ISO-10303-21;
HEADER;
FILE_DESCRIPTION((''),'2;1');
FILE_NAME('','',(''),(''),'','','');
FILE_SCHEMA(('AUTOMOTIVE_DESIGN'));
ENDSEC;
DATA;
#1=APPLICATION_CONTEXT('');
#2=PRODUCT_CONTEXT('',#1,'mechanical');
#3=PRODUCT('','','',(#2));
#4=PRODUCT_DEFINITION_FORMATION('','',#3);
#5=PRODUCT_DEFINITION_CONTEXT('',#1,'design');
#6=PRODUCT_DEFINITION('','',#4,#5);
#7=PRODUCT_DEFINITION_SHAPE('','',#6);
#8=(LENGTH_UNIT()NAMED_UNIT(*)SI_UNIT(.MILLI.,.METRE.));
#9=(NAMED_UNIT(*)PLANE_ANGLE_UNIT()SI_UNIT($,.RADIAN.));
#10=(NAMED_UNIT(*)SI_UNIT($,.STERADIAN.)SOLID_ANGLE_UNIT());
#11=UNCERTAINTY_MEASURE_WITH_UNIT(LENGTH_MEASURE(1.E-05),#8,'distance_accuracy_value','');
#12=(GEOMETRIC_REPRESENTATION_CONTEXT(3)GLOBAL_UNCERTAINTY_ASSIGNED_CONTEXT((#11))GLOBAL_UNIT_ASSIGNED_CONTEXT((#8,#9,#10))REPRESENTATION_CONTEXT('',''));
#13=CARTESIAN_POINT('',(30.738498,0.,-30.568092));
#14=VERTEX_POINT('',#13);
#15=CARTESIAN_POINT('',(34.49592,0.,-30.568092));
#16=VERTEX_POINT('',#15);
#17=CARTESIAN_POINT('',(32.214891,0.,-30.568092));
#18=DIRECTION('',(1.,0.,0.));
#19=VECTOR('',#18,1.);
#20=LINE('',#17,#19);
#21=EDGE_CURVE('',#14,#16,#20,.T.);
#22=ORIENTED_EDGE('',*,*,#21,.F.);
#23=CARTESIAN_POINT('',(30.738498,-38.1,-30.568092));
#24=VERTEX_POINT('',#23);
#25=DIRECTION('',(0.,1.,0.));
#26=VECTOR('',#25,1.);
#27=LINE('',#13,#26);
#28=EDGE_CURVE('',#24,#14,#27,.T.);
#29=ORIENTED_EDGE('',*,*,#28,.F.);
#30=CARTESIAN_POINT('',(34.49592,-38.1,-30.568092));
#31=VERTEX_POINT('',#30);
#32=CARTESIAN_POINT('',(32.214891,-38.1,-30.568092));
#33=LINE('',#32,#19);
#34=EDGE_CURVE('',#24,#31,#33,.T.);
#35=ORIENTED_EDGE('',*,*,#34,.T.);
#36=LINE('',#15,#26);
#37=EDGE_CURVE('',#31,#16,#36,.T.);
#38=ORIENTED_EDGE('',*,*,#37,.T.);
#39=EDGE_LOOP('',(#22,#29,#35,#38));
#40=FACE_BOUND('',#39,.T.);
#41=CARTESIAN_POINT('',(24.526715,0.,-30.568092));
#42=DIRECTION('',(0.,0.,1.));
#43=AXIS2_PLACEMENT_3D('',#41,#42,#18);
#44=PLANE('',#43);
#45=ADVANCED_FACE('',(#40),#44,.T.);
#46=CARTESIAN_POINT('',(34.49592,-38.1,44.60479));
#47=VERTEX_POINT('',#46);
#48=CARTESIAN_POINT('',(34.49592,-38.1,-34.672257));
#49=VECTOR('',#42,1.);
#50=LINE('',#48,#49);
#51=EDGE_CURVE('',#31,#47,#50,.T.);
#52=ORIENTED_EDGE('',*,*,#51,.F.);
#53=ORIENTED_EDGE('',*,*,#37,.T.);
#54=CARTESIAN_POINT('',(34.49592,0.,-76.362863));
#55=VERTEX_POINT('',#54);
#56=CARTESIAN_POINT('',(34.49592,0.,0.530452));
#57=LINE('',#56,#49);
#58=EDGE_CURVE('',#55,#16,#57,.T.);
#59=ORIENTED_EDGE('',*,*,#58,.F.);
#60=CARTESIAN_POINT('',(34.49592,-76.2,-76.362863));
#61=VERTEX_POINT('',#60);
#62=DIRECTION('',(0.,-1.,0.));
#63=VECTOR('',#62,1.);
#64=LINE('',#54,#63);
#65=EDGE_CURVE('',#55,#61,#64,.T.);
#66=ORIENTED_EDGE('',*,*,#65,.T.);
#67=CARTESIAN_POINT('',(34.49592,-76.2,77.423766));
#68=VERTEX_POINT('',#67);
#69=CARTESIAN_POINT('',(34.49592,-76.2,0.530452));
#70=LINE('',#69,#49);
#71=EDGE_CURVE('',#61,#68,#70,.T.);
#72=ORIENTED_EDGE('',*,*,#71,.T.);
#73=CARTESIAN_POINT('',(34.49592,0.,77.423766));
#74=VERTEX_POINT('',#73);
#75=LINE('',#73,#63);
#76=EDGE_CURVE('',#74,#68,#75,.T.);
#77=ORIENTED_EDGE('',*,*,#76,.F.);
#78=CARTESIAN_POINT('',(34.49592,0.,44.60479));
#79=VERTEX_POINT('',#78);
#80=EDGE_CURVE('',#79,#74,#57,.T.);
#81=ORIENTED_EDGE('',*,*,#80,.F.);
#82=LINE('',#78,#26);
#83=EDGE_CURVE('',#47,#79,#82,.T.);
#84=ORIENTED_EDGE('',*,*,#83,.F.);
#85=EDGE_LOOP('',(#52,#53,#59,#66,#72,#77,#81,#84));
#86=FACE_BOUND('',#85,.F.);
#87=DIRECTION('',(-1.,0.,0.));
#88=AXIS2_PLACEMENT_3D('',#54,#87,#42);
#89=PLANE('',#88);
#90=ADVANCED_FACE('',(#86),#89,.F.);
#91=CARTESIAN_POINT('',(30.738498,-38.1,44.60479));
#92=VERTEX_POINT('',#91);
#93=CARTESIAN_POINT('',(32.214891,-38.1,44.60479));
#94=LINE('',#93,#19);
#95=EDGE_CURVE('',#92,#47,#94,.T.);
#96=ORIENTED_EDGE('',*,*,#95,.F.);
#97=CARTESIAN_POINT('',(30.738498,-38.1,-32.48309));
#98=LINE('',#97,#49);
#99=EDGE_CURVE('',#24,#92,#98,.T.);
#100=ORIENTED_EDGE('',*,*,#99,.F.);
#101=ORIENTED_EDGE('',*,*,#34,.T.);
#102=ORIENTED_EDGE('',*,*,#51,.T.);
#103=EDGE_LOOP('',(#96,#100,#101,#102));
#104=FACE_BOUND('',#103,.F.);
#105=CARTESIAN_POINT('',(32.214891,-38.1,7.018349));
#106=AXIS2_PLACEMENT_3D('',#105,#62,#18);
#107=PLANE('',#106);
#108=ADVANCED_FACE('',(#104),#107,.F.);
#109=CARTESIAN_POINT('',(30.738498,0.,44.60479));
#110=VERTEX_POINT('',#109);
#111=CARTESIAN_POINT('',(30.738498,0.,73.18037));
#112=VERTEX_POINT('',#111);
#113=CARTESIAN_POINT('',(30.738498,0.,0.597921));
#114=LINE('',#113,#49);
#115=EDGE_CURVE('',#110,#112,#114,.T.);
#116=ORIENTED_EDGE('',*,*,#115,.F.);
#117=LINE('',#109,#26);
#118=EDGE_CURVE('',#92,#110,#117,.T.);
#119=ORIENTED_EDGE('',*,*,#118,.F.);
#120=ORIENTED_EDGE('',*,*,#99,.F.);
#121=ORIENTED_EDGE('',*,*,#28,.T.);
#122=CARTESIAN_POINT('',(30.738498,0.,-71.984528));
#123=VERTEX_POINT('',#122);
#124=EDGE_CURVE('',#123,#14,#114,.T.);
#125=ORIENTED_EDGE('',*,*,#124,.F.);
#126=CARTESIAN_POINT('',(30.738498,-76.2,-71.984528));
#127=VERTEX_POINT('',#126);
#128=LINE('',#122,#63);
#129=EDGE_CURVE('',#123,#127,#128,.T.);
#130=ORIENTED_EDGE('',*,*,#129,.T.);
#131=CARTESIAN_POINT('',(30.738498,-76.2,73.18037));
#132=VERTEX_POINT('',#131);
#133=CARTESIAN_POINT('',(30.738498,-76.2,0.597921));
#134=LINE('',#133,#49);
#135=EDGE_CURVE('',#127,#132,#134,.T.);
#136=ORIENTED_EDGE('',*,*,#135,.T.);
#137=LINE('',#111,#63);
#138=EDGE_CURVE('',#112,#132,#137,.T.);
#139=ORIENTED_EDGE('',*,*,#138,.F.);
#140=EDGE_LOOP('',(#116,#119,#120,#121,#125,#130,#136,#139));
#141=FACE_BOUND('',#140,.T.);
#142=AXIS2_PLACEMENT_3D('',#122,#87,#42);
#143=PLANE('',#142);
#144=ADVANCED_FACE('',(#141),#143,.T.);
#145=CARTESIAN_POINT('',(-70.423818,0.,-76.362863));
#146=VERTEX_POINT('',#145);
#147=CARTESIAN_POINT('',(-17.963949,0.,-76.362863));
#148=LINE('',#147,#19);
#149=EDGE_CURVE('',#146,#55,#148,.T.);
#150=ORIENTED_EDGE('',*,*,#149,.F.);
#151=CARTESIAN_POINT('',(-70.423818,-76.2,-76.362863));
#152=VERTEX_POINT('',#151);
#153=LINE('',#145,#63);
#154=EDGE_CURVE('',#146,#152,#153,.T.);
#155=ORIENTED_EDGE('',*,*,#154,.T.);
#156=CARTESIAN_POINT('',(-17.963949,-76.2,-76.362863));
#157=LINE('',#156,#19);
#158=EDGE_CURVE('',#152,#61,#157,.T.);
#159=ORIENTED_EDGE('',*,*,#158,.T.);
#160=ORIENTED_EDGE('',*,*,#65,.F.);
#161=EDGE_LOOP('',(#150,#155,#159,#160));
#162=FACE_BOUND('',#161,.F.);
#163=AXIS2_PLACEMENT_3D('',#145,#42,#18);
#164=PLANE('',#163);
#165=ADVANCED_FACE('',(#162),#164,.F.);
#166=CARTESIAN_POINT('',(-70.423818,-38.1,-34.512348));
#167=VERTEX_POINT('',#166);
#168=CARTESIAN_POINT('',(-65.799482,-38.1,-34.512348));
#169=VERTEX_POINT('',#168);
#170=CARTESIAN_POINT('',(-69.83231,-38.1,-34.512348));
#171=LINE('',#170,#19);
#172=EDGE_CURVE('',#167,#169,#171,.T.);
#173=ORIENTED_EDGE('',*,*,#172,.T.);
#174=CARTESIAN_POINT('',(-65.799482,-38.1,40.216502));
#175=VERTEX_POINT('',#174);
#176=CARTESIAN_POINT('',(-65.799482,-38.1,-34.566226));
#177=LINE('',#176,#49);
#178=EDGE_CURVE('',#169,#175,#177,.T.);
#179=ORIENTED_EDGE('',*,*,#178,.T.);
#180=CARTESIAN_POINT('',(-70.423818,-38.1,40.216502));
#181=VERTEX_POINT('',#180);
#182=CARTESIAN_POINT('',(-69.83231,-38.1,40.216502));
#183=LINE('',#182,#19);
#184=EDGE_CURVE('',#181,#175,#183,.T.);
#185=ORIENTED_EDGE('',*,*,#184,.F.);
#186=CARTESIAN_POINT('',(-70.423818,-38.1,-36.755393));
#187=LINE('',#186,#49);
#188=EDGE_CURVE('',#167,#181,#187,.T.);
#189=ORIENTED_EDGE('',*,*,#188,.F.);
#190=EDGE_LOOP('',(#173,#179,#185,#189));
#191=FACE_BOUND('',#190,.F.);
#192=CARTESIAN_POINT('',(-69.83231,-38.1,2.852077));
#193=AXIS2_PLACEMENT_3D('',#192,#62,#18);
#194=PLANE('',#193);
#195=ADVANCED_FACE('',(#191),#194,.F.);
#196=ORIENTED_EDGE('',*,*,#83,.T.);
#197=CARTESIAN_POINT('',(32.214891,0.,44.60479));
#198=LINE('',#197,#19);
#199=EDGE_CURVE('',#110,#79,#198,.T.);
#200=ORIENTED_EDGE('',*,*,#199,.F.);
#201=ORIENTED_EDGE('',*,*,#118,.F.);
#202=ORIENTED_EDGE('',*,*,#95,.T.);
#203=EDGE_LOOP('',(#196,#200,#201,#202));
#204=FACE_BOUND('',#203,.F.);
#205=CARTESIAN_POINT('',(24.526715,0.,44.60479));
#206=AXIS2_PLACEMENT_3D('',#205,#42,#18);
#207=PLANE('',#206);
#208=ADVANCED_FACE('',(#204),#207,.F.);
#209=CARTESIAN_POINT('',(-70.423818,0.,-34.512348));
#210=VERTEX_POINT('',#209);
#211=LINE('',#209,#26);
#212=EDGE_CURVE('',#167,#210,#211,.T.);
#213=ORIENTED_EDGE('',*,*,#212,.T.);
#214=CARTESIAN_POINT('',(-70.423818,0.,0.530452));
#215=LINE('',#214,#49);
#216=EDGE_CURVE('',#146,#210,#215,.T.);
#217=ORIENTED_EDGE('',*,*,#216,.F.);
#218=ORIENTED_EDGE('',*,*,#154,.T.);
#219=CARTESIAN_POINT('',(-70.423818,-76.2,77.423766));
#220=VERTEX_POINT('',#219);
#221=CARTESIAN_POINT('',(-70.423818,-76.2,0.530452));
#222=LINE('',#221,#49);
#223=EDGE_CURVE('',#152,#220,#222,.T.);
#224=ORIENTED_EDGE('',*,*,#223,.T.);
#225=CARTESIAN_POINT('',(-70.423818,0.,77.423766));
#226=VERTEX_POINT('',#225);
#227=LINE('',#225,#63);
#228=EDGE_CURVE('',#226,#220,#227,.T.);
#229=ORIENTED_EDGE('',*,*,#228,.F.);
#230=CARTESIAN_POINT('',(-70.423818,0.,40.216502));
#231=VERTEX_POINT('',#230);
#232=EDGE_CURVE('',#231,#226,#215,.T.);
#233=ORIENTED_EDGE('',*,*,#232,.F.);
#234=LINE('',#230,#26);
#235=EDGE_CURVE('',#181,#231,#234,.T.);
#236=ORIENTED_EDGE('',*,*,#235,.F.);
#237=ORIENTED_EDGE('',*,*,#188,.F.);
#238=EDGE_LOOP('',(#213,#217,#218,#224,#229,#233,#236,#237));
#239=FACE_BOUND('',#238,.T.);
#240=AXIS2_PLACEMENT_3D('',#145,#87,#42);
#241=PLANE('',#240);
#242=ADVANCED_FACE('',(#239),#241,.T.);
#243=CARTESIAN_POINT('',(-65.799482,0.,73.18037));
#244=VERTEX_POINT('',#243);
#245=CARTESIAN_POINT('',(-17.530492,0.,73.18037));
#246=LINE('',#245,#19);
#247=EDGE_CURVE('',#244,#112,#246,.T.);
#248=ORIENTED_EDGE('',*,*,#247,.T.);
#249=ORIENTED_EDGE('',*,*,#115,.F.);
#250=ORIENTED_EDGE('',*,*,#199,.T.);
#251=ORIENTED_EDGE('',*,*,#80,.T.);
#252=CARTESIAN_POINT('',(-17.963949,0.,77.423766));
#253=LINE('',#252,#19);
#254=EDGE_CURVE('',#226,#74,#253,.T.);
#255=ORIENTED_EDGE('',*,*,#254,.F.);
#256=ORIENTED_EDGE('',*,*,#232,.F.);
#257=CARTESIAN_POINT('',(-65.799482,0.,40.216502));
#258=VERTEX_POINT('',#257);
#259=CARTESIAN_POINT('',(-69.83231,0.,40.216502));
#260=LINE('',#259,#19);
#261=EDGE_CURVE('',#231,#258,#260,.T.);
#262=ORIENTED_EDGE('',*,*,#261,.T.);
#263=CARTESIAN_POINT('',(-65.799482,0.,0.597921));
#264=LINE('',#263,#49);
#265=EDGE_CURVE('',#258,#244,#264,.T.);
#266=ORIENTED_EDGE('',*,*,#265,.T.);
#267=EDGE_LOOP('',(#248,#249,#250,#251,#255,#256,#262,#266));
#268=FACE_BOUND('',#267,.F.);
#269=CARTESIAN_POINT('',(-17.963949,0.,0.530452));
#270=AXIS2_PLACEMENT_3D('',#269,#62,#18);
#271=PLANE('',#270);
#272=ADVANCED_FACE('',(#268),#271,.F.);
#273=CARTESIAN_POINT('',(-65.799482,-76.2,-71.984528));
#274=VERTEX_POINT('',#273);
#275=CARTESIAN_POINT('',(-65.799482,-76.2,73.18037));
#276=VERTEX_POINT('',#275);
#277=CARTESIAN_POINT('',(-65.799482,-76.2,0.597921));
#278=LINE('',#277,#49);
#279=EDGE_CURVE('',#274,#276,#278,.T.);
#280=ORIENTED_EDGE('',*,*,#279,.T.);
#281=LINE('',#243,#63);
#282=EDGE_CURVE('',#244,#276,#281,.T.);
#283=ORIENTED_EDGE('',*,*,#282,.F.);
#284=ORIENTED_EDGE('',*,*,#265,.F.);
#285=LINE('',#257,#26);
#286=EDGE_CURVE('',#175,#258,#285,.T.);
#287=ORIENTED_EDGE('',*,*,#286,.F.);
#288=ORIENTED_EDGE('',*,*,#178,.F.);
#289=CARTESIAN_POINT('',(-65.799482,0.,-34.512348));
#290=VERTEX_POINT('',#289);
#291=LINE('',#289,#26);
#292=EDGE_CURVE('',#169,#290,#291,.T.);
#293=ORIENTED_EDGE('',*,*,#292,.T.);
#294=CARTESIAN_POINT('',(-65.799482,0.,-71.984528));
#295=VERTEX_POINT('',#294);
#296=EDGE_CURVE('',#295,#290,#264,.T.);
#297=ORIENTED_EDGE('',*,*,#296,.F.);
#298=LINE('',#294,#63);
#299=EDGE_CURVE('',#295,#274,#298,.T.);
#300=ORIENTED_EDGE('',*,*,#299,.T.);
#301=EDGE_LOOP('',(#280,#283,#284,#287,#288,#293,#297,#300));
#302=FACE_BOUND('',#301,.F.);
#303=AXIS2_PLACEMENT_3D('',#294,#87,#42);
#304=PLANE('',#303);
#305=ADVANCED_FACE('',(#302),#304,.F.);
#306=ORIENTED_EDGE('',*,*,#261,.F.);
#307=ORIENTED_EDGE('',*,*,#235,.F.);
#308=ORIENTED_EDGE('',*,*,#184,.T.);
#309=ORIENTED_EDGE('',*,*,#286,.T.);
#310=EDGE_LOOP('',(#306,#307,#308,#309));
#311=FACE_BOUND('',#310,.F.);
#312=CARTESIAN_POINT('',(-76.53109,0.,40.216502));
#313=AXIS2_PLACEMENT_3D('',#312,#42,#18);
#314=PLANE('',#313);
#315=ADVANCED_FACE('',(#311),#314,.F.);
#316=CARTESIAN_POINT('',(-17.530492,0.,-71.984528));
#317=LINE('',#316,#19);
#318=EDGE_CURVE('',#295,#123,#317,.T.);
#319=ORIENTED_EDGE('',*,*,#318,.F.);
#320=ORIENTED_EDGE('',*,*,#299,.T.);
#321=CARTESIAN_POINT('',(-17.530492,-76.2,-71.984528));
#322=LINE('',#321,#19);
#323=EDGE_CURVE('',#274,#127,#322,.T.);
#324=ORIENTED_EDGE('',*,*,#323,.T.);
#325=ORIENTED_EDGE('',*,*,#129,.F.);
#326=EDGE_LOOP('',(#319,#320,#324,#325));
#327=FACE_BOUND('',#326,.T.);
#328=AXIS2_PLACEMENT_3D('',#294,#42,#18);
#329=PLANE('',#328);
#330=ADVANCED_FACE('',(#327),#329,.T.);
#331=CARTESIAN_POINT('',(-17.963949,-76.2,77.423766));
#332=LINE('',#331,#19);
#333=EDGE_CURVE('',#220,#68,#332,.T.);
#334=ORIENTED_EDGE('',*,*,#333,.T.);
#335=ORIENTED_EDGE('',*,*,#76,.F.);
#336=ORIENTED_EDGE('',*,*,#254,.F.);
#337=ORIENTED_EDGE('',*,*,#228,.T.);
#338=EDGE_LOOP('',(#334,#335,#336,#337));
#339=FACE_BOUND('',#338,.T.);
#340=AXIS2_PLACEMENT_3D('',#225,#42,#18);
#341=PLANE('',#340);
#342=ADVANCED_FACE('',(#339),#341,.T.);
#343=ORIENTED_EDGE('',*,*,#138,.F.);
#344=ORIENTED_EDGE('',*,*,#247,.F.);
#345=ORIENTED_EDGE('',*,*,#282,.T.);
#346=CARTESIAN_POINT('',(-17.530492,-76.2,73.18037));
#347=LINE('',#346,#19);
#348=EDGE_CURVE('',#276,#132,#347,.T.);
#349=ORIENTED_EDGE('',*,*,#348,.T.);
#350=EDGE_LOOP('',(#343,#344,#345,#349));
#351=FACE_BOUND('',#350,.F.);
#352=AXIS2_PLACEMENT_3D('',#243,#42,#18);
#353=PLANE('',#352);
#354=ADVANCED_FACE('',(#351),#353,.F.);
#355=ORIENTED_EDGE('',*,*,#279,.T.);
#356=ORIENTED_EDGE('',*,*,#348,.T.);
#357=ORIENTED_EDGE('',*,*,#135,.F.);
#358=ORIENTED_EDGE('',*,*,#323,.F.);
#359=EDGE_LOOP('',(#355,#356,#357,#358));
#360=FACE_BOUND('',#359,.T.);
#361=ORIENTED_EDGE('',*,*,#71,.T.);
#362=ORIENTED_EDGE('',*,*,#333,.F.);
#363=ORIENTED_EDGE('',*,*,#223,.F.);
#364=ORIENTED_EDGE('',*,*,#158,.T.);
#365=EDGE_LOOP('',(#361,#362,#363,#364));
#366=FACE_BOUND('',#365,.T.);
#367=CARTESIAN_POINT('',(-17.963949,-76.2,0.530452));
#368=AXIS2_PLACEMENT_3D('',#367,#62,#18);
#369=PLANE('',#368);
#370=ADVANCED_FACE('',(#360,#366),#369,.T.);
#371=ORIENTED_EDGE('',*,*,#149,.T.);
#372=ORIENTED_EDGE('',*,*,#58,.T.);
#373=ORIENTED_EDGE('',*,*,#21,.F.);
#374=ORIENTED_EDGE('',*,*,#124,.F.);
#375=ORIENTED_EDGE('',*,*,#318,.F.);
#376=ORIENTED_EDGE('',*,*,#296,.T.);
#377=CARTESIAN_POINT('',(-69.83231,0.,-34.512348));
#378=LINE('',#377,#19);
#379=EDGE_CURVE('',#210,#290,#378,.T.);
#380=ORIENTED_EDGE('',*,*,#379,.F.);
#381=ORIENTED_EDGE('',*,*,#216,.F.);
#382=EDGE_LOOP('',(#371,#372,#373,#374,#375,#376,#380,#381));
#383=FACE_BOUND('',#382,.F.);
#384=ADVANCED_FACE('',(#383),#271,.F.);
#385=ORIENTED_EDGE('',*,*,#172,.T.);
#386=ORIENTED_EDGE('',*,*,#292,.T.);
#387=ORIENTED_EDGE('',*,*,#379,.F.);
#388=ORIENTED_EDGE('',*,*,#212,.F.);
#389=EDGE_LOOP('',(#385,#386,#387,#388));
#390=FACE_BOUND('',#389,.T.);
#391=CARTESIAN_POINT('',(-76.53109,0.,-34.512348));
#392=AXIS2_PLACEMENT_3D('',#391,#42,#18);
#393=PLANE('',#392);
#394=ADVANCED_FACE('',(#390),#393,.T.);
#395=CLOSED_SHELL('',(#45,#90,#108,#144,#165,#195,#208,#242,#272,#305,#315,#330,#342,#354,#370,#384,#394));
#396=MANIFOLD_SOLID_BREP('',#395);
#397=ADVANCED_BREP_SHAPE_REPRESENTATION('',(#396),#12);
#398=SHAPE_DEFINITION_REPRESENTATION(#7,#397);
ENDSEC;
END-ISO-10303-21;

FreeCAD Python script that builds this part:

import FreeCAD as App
import Part
import Sketcher

V = App.Vector
Q = App.Units.Quantity

doc = App.newDocument("Part")
body = doc.addObject("PartDesign::Body", "Body")

sketch1 = body.newObject("Sketcher::SketchObject", "Sketch")
sketch1.AttachmentSupport = (doc.getObject("XZ_Plane"), [""])
sketch1.MapMode = "FlatFace"
sketch1.addGeometry([
    Part.LineSegment(V(-70, 77, 0), V(-70, -76, 0)),
    Part.LineSegment(V(-70, -76, 0), V(34, -76, 0)),
    Part.LineSegment(V(34, -76, 0), V(34, 77, 0)),
    Part.LineSegment(V(34, 77, 0), V(-70, 77, 0)),
    Part.LineSegment(V(31, -72, 0), V(-66, -72, 0)),
    Part.LineSegment(V(-66, -72, 0), V(-66, 73, 0)),
    Part.LineSegment(V(-66, 73, 0), V(31, 73, 0)),
    Part.LineSegment(V(31, 73, 0), V(31, -72, 0)),
], False)
sketch1.addConstraint([
    Sketcher.Constraint("Coincident", 0, 2, 1, 1),
    Sketcher.Constraint("Coincident", 1, 2, 2, 1),
    Sketcher.Constraint("Coincident", 2, 2, 3, 1),
    Sketcher.Constraint("Coincident", 3, 2, 0, 1),
    Sketcher.Constraint("Coincident", 4, 2, 5, 1),
    Sketcher.Constraint("Coincident", 5, 2, 6, 1),
    Sketcher.Constraint("Coincident", 6, 2, 7, 1),
    Sketcher.Constraint("Coincident", 7, 2, 4, 1),
    Sketcher.Constraint("Vertical", 0),
    Sketcher.Constraint("Horizontal", 1),
    Sketcher.Constraint("Vertical", 2),
    Sketcher.Constraint("Horizontal", 3),
    Sketcher.Constraint("Horizontal", 4),
    Sketcher.Constraint("Vertical", 5),
    Sketcher.Constraint("Horizontal", 6),
    Sketcher.Constraint("Vertical", 7),
    Sketcher.Constraint("DistanceY", 5, 1, 5, 2, Q("145.164899 mm")),
    Sketcher.Constraint("DistanceX", 1, 1, 1, 2, Q("104.919739 mm")),
    Sketcher.Constraint("DistanceX", 4, 2, 4, 1, Q("96.537981 mm")),
    Sketcher.Constraint("DistanceY", 0, 2, 0, 1, Q("153.786629 mm")),
    Sketcher.Constraint("DistanceX", -1, 1, 6, 2, Q("30.738498 mm")),
    Sketcher.Constraint("DistanceX", 0, 2, -1, 1, Q("70.423818 mm")),
    Sketcher.Constraint("DistanceY", 4, 2, -1, 1, Q("71.984528 mm")),
    Sketcher.Constraint("DistanceY", 0, 2, -1, 1, Q("76.362863 mm")),
])
pad1 = body.newObject("PartDesign::Pad", "Pad")
pad1.Profile = sketch1
pad1.Length = Q("3 in")

sketch2 = body.newObject("Sketcher::SketchObject", "Sketch001")
sketch2.AttachmentSupport = (doc.getObject("XZ_Plane"), [""])
sketch2.MapMode = "FlatFace"
sketch2.addGeometry([
    Part.LineSegment(V(25, 45, 0), V(25, -31, 0)),
    Part.LineSegment(V(25, -31, 0), V(40, -31, 0)),
    Part.LineSegment(V(40, -31, 0), V(40, 45, 0)),
    Part.LineSegment(V(40, 45, 0), V(25, 45, 0)),
    Part.LineSegment(V(-77, 40, 0), V(-77, -35, 0)),
    Part.LineSegment(V(-77, -35, 0), V(-63, -35, 0)),
    Part.LineSegment(V(-63, -35, 0), V(-63, 40, 0)),
    Part.LineSegment(V(-63, 40, 0), V(-77, 40, 0)),
], False)
sketch2.addConstraint([
    Sketcher.Constraint("Coincident", 0, 2, 1, 1),
    Sketcher.Constraint("Coincident", 1, 2, 2, 1),
    Sketcher.Constraint("Coincident", 2, 2, 3, 1),
    Sketcher.Constraint("Coincident", 3, 2, 0, 1),
    Sketcher.Constraint("Coincident", 4, 2, 5, 1),
    Sketcher.Constraint("Coincident", 5, 2, 6, 1),
    Sketcher.Constraint("Coincident", 6, 2, 7, 1),
    Sketcher.Constraint("Coincident", 7, 2, 4, 1),
    Sketcher.Constraint("Vertical", 0),
    Sketcher.Constraint("Horizontal", 1),
    Sketcher.Constraint("Vertical", 2),
    Sketcher.Constraint("Horizontal", 3),
    Sketcher.Constraint("Vertical", 4),
    Sketcher.Constraint("Horizontal", 5),
    Sketcher.Constraint("Vertical", 6),
    Sketcher.Constraint("Horizontal", 7),
    Sketcher.Constraint("DistanceX", 5, 1, 5, 2, Q("13.39756 mm")),
    Sketcher.Constraint("DistanceY", 0, 2, 0, 1, Q("75.172882 mm")),
    Sketcher.Constraint("DistanceY", 4, 2, 4, 1, Q("74.72885 mm")),
    Sketcher.Constraint("DistanceY", -1, 1, 6, 2, Q("40.216502 mm")),
    Sketcher.Constraint("DistanceX", 1, 1, 1, 2, Q("15.376352 mm")),
    Sketcher.Constraint("DistanceY", 0, 2, -1, 1, Q("30.568092 mm")),
    Sketcher.Constraint("DistanceX", 4, 2, -1, 1, Q("76.53109 mm")),
    Sketcher.Constraint("DistanceX", -1, 1, 0, 2, Q("24.526715 mm")),
])
pocket1 = body.newObject("PartDesign::Pocket", "Pocket")
pocket1.Profile = sketch2
pocket1.Length = Q("1.5 in")
pocket1.Reversed = True

doc.recompute()
